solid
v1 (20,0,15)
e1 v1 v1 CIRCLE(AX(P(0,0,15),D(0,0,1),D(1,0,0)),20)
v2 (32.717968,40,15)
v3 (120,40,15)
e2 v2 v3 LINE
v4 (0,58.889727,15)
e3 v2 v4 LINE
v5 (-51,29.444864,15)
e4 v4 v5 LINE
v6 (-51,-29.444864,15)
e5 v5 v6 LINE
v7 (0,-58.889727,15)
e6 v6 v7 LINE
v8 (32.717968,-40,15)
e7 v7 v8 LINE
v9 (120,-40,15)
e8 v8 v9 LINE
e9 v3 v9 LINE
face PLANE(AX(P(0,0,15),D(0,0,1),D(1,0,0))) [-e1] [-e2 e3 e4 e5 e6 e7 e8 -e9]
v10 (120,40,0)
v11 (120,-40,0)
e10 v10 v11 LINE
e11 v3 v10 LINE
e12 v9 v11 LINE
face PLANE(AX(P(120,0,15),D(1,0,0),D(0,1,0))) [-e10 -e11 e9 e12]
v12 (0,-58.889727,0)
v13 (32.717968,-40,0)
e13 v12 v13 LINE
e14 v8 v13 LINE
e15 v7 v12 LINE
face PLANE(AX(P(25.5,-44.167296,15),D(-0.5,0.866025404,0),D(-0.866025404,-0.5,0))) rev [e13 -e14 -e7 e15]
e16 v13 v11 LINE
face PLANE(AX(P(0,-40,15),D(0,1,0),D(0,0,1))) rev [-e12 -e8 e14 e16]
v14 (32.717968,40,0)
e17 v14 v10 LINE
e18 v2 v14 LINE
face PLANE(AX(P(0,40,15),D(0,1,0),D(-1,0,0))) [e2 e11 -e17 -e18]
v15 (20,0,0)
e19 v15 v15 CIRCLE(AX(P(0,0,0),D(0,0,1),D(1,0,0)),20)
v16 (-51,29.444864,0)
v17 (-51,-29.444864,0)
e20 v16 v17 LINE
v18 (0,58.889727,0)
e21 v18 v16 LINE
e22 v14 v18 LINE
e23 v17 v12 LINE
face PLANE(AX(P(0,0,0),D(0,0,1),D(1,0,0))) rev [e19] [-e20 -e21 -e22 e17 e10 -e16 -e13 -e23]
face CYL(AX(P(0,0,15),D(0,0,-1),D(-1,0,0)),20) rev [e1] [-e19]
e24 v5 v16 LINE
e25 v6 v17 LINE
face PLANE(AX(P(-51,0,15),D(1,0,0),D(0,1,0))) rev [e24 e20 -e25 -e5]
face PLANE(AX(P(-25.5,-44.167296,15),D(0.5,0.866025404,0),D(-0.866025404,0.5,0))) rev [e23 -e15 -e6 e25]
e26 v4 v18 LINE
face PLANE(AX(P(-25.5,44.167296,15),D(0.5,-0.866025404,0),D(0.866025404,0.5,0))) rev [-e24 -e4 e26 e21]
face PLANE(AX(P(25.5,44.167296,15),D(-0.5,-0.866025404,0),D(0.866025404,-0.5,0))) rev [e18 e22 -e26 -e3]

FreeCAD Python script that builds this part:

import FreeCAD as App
import Part
import Sketcher
Q = App.Units.Quantity


def add_polygon(sketch, points):
    """Adds a closed chain of lines whose ends are joined by coincident constraints."""
    first, n = sketch.GeometryCount, len(points)
    for a, b in zip(points, points[1:] + points[:1]):
        sketch.addGeometry(Part.LineSegment(App.Vector(*a, 0), App.Vector(*b, 0)), False)
    for i in range(n):
        sketch.addConstraint(Sketcher.Constraint("Coincident", first + i, 2, first + (i + 1) % n, 1))

doc = App.newDocument("Part")
params = doc.addObject("Spreadsheet::Sheet", "Params")
for row, (alias, value) in enumerate([
    ("sketch1_diameter", "40 mm"),
    ("sketch1_height", "80 mm"),
    ("pad1_length", "15 mm"),
], start=1):
    params.set(f"A{row}", alias)
    params.set(f"B{row}", "=" + value)
    params.setAlias(f"B{row}", alias)

body = doc.addObject("PartDesign::Body", "Body")

# Sketch on XY plane
sketch1 = body.newObject("Sketcher::SketchObject", "Sketch")
sketch1.AttachmentSupport = (doc.getObject("XY_Plane"), [""])
sketch1.MapMode = "FlatFace"
add_polygon(sketch1, [(120, 40), (33, 40), (0, 59), (-51, 29), (-51, -29), (0, -59), (33, -40), (120, -40)])  # lines 0-7
sketch1.addGeometry(Part.Circle(App.Vector(0, 0, 0), App.Vector(0, 0, 1), 20), False)  # 8
sketch1.addConstraint([
    Sketcher.Constraint("Horizontal", 0),
    Sketcher.Constraint("Vertical", 3),
    Sketcher.Constraint("Horizontal", 6),
    Sketcher.Constraint("Vertical", 7),
    Sketcher.Constraint("Coincident", 8, 3, -1, 1),
    Sketcher.Constraint("Symmetric", 1, 2, 4, 2, -1, 1),
    Sketcher.Constraint("Symmetric", 0, 2, 5, 2, -1),
    Sketcher.Constraint("PointOnObject", 1, 2, -2),
    Sketcher.Constraint("Parallel", 1, 4),
    Sketcher.Constraint("Parallel", 2, 5),
    Sketcher.Constraint("Diameter", 8, 40.0),
    Sketcher.Constraint("DistanceY", 7, 1, 7, 2, 80.0),
    Sketcher.Constraint("Angle", 1, Q("150 deg")),
    Sketcher.Constraint("DistanceX", 2, 2, -1, 1, 51.0),
    Sketcher.Constraint("DistanceX", -1, 1, 6, 2, 120.0),
    Sketcher.Constraint("DistanceX", 0, 2, 0, 1, 87.282032),
])
sketch1.setExpression("Constraints[18]", "Params.sketch1_diameter")
sketch1.setExpression("Constraints[19]", "Params.sketch1_height")
pad1 = body.newObject("PartDesign::Pad", "Pad")
pad1.Profile = sketch1
pad1.setExpression("Length", "Params.pad1_length")

doc.recompute()
